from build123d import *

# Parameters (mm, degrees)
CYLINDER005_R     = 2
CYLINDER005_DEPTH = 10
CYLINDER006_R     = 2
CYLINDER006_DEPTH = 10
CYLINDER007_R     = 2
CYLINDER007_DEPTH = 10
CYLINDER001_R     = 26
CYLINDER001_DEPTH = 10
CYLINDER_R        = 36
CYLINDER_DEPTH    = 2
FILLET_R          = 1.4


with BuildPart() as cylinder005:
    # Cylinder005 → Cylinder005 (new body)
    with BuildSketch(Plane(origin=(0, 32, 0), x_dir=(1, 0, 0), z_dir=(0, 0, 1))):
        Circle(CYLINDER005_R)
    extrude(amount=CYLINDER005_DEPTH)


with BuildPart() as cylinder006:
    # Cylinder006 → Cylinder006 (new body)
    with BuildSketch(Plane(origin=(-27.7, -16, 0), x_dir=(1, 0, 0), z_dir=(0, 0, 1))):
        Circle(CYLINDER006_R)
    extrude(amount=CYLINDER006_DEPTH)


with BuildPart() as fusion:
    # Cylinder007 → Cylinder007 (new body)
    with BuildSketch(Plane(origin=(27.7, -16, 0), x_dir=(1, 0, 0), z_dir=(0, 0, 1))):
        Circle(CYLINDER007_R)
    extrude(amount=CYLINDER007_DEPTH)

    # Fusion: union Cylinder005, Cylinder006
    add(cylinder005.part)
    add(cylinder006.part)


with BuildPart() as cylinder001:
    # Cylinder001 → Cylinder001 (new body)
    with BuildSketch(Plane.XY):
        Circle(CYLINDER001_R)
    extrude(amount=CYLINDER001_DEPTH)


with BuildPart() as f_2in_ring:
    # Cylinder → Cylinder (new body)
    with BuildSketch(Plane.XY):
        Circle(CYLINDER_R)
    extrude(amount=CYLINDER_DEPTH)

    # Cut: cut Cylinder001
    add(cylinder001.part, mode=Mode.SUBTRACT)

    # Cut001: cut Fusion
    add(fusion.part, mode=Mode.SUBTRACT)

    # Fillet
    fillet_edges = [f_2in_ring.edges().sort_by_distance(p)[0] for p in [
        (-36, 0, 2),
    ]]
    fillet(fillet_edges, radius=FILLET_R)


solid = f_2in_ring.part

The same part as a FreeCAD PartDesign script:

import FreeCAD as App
import Part
import Sketcher
from FreeCAD import Vector


def edges_at(feature, points):
    """Names of the edges that pass closest to the given points."""
    edges = feature.Shape.Edges
    near = lambda p: min(range(len(edges)), key=lambda i: edges[i].distToShape(Part.Vertex(*p))[0])
    return sorted({f"Edge{near(p) + 1}" for p in points})

doc = App.newDocument("Part")
body = doc.addObject("PartDesign::Body", "Body")

sketch1 = doc.addObject("Sketcher::SketchObject", "Sketch")
body.addObject(sketch1)
sketch1.AttachmentSupport = (doc.XY_Plane, [""])
sketch1.MapMode = "FlatFace"
sketch1.addGeometry(Part.Circle(Vector(0, 32, 0), Vector(0, 0, 1), 2), False)
sketch1.addConstraint([
    Sketcher.Constraint("PointOnObject", 0, 3, -2),
    Sketcher.Constraint("Diameter", 0, 4.0),
    Sketcher.Constraint("DistanceY", -1, 1, 0, 3, 32.0),
])
pad1 = doc.addObject("PartDesign::Pad", "Pad")
body.addObject(pad1)
pad1.Profile = sketch1
pad1.Length = 10
body2 = doc.addObject("PartDesign::Body", "Body001")

sketch2 = doc.addObject("Sketcher::SketchObject", "Sketch001")
body2.addObject(sketch2)
sketch2.AttachmentSupport = (doc.getObject("XY_Plane001"), [""])
sketch2.MapMode = "FlatFace"
sketch2.addGeometry(Part.Circle(Vector(-27.7, -16, 0), Vector(0, 0, 1), 2), False)
sketch2.addConstraint([
    Sketcher.Constraint("Diameter", 0, 4.0),
    Sketcher.Constraint("DistanceY", 0, 3, -1, 1, 16.0),
    Sketcher.Constraint("DistanceX", 0, 3, -1, 1, 27.7),
])
pad2 = doc.addObject("PartDesign::Pad", "Pad001")
body2.addObject(pad2)
pad2.Profile = sketch2
pad2.Length = 10
body3 = doc.addObject("PartDesign::Body", "Body002")
body3.AllowCompound = True

sketch3 = doc.addObject("Sketcher::SketchObject", "Sketch002")
body3.addObject(sketch3)
sketch3.AttachmentSupport = (doc.getObject("XY_Plane002"), [""])
sketch3.MapMode = "FlatFace"
sketch3.addGeometry(Part.Circle(Vector(27.7, -16, 0), Vector(0, 0, 1), 2), False)
sketch3.addConstraint([
    Sketcher.Constraint("Diameter", 0, 4.0),
    Sketcher.Constraint("DistanceY", 0, 3, -1, 1, 16.0),
    Sketcher.Constraint("DistanceX", -1, 1, 0, 3, 27.7),
])
pad3 = doc.addObject("PartDesign::Pad", "Pad002")
body3.addObject(pad3)
pad3.Profile = sketch3
pad3.Length = 10
doc.recompute()

boolean = doc.addObject("PartDesign::Boolean", "Boolean")
body3.addObject(boolean)
boolean.Type = "Fuse"
boolean.addObjects([body])
doc.recompute()

boolean2 = doc.addObject("PartDesign::Boolean", "Boolean001")
body3.addObject(boolean2)
boolean2.Type = "Fuse"
boolean2.addObjects([body2])
body4 = doc.addObject("PartDesign::Body", "Body003")

sketch4 = doc.addObject("Sketcher::SketchObject", "Sketch003")
body4.addObject(sketch4)
sketch4.AttachmentSupport = (doc.getObject("XY_Plane003"), [""])
sketch4.MapMode = "FlatFace"
sketch4.addGeometry(Part.Circle(Vector(0, 0, 0), Vector(0, 0, 1), 26), False)
sketch4.addConstraint([
    Sketcher.Constraint("Coincident", 0, 3, -1, 1),
    Sketcher.Constraint("Diameter", 0, 52.0),
])
pad4 = doc.addObject("PartDesign::Pad", "Pad003")
body4.addObject(pad4)
pad4.Profile = sketch4
pad4.Length = 10
body5 = doc.addObject("PartDesign::Body", "Body004")

sketch5 = doc.addObject("Sketcher::SketchObject", "Sketch004")
body5.addObject(sketch5)
sketch5.AttachmentSupport = (doc.getObject("XY_Plane004"), [""])
sketch5.MapMode = "FlatFace"
sketch5.addGeometry(Part.Circle(Vector(0, 0, 0), Vector(0, 0, 1), 36), False)
sketch5.addConstraint([
    Sketcher.Constraint("Coincident", 0, 3, -1, 1),
    Sketcher.Constraint("Diameter", 0, 72.0),
])
pad5 = doc.addObject("PartDesign::Pad", "Pad004")
body5.addObject(pad5)
pad5.Profile = sketch5
pad5.Length = 2
doc.recompute()

boolean3 = doc.addObject("PartDesign::Boolean", "Boolean002")
body5.addObject(boolean3)
boolean3.Type = "Cut"
boolean3.addObjects([body4])
doc.recompute()

boolean4 = doc.addObject("PartDesign::Boolean", "Boolean003")
body5.addObject(boolean4)
boolean4.Type = "Cut"
boolean4.addObjects([body3])
doc.recompute()

fillet = doc.addObject("PartDesign::Fillet", "Fillet")
body5.addObject(fillet)
fillet.Base = (boolean4, edges_at(boolean4, [(-36, 0, 2)]))
fillet.Radius = 1.4

doc.recompute()
